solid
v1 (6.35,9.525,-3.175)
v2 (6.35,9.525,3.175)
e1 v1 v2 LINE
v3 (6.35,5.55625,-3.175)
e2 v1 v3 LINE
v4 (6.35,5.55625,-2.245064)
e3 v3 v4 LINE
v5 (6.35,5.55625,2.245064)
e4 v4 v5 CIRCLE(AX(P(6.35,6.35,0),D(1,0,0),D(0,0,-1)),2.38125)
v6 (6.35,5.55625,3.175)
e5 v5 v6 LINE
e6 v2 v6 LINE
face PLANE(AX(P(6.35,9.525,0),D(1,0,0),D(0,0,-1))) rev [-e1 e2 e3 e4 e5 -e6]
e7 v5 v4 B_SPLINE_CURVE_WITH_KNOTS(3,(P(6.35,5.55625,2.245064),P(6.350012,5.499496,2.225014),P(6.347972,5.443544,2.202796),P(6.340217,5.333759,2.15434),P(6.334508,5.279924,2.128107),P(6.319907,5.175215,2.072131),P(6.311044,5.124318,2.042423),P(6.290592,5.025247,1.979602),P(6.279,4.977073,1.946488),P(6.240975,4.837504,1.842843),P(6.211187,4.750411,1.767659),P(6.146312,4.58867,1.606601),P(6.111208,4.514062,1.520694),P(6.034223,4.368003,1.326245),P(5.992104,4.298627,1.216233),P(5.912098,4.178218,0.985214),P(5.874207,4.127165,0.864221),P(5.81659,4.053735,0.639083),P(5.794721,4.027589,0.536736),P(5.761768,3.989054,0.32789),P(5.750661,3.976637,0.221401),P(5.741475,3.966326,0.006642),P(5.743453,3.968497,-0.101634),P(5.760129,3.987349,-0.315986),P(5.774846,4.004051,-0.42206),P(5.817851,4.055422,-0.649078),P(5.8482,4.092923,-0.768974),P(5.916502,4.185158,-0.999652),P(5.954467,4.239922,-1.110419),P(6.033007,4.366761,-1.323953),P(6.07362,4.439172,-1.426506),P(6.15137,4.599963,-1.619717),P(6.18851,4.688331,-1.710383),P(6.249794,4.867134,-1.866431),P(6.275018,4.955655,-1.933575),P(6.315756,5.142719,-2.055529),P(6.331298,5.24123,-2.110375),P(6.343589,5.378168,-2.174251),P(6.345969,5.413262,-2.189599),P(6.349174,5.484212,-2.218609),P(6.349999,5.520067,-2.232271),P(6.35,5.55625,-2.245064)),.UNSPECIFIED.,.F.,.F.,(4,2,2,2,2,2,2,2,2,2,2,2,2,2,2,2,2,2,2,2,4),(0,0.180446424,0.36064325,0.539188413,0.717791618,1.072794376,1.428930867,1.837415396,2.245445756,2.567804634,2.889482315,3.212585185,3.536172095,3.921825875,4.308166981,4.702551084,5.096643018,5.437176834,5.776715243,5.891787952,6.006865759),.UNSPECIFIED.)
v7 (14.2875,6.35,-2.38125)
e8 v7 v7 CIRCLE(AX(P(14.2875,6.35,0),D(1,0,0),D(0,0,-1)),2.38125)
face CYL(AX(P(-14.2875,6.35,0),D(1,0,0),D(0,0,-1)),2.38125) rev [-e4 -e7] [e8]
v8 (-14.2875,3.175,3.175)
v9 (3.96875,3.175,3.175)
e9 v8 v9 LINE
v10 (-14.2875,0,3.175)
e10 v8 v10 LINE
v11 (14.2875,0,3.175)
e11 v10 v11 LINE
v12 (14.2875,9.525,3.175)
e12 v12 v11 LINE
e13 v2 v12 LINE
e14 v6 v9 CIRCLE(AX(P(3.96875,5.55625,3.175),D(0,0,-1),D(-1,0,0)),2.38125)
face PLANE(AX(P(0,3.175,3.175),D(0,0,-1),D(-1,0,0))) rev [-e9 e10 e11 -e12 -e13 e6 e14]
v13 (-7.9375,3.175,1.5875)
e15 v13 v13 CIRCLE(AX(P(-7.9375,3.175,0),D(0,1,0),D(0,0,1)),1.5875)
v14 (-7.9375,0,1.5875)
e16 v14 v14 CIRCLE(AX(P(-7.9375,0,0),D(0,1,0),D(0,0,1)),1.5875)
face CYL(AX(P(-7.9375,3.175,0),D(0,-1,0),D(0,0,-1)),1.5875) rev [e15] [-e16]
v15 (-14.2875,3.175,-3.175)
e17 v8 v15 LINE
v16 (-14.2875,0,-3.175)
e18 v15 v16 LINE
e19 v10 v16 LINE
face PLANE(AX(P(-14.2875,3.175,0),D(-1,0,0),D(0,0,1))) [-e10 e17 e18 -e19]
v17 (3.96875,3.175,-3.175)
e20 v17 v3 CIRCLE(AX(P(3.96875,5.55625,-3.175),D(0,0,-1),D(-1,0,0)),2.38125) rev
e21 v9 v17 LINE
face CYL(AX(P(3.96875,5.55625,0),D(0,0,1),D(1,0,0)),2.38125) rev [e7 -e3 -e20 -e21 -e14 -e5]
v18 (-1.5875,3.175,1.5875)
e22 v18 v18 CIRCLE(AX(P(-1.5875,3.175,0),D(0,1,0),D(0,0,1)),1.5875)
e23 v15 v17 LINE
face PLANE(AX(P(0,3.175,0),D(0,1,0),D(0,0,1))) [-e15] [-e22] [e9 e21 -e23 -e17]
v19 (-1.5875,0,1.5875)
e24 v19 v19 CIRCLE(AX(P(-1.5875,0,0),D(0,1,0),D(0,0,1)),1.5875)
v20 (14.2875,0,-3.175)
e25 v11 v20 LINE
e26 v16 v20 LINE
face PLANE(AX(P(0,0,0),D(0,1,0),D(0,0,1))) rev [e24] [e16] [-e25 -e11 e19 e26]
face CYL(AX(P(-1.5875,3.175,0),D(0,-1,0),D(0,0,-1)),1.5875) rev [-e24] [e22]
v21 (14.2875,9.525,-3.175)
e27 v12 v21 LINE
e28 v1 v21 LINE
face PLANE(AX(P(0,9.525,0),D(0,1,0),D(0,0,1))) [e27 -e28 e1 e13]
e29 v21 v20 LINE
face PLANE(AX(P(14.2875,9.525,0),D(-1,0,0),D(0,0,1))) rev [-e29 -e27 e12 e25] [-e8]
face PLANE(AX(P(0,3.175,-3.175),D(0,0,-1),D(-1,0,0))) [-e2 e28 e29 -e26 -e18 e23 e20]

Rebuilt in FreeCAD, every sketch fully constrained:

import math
import FreeCAD as App
import Part
import Sketcher
from FreeCAD import Vector
Q = App.Units.Quantity


def edges_at(feature, points):
    """Names of the edges that pass closest to the given points."""
    edges = feature.Shape.Edges
    near = lambda p: min(range(len(edges)), key=lambda i: edges[i].distToShape(Part.Vertex(*p))[0])
    return sorted({f"Edge{near(p) + 1}" for p in points})


def add_polygon(sketch, points):
    """Adds a closed chain of lines whose ends are joined by coincident constraints."""
    first, n = sketch.GeometryCount, len(points)
    for a, b in zip(points, points[1:] + points[:1]):
        sketch.addGeometry(Part.LineSegment(App.Vector(*a, 0), App.Vector(*b, 0)), False)
    for i in range(n):
        sketch.addConstraint(Sketcher.Constraint("Coincident", first + i, 2, first + (i + 1) % n, 1))

doc = App.newDocument("Part")
body = doc.addObject("PartDesign::Body", "Body")

sketch1 = body.newObject("Sketcher::SketchObject", "Sketch")
sketch1.AttachmentSupport = (doc.getObject("XZ_Plane"), [""])
sketch1.MapMode = "FlatFace"
add_polygon(sketch1, [(-14.3, -3.2), (-14.3, 3.2), (6.3, 3.2), (6.3, -3.2)])
sketch1.addGeometry(Part.Circle(Vector(-7.9, 0, 0), Vector(0, 0, 1), 1.6), False)
sketch1.addGeometry(Part.Circle(Vector(-1.6, 0, 0), Vector(0, 0, 1), 1.6), False)
sketch1.addConstraint([
    Sketcher.Constraint("Vertical", 0),
    Sketcher.Constraint("Horizontal", 1),
    Sketcher.Constraint("Vertical", 2),
    Sketcher.Constraint("Horizontal", 3),
    Sketcher.Constraint("Equal", 4, 5),
    Sketcher.Constraint("PointOnObject", 4, 3, -1),
    Sketcher.Constraint("PointOnObject", 5, 3, -1),
    Sketcher.Constraint("Diameter", 4, Q("0.125 in")),
    Sketcher.Constraint("DistanceY", 0, 1, 0, 2, Q("0.25 in")),
    Sketcher.Constraint("DistanceX", 0, 2, 5, 3, Q("0.5 in")),
    Sketcher.Constraint("DistanceX", 1, 1, 1, 2, Q("0.8125 in")),
    Sketcher.Constraint("DistanceX", -1, 1, 1, 2, Q("0.25 in")),
    Sketcher.Constraint("DistanceX", 4, 3, 5, 3, Q("0.25 in")),
    Sketcher.Constraint("DistanceY", -1, 1, 0, 2, Q("0.125 in")),
])
pad1 = body.newObject("PartDesign::Pad", "Pad")
pad1.Profile = sketch1
pad1.Length = Q("0.125 in")
pad1.Reversed = True

sketch2 = body.newObject("Sketcher::SketchObject", "Sketch001")
sketch2.AttachmentSupport = (doc.getObject("XZ_Plane"), [""])
sketch2.MapMode = "FlatFace"
add_polygon(sketch2, [(6, -3), (6, 3), (14, 3), (14, -3)])
sketch2.addConstraint([
    Sketcher.Constraint("Vertical", 0),
    Sketcher.Constraint("Horizontal", 1),
    Sketcher.Constraint("Vertical", 2),
    Sketcher.Constraint("Horizontal", 3),
    Sketcher.Constraint("DistanceY", 0, 1, 0, 2, Q("0.25 in")),
    Sketcher.Constraint("DistanceX", 1, 1, 1, 2, Q("0.3125 in")),
    Sketcher.Constraint("DistanceX", -1, 1, 0, 2, Q("0.25 in")),
    Sketcher.Constraint("DistanceY", -1, 1, 0, 2, Q("0.125 in")),
])
pad2 = body.newObject("PartDesign::Pad", "Pad001")
pad2.Profile = sketch2
pad2.Length = Q("0.375 in")
pad2.Reversed = True
doc.recompute()

fillet = body.newObject("PartDesign::Fillet", "Fillet")
fillet.Base = (pad2, edges_at(pad2, [(6.35, 3.175, 0)]))
fillet.Radius = Q("0.09375 in")

sketch3 = body.newObject("Sketcher::SketchObject", "Sketch002")
sketch3.AttachmentSupport = (doc.getObject("YZ_Plane"), [""])
sketch3.MapMode = "FlatFace"
sketch3.AttachmentOffset = App.Placement(Vector(0, 0, 0.5625 * 25.4), App.Rotation())
sketch3.addGeometry([
    Part.ArcOfCircle(Part.Circle(Vector(6.3, 0, 0), Vector(0, 0, 1), 2.4), math.radians(0), math.radians(180)),
    Part.ArcOfCircle(Part.Circle(Vector(6.3, 0, 0), Vector(0, 0, 1), 2.4), math.radians(180), math.radians(270)),
    Part.ArcOfCircle(Part.Circle(Vector(6.4, 0, 0), Vector(0, 0, 1), 2.4), math.radians(-90), math.radians(0)),
], False)
sketch3.addConstraint([
    Sketcher.Constraint("Tangent", 0, 2, 1, 1),
    Sketcher.Constraint("Tangent", 1, 2, 2, 1),
    Sketcher.Constraint("Tangent", 2, 2, 0, 1),
    Sketcher.Constraint("PointOnObject", 0, 3, -1),
    Sketcher.Constraint("PointOnObject", 0, 2, -1),
    Sketcher.Constraint("PointOnObject", 2, 2, -1),
    Sketcher.Constraint("Vertical", 2, 3, 1, 2),
    Sketcher.Constraint("Radius", 0, Q("0.09375 in")),
    Sketcher.Constraint("DistanceX", -1, 1, 0, 3, Q("0.25 in")),
])
pocket1 = body.newObject("PartDesign::Pocket", "Pocket")
pocket1.Profile = sketch3
pocket1.Type = "ThroughAll"

doc.recompute()
